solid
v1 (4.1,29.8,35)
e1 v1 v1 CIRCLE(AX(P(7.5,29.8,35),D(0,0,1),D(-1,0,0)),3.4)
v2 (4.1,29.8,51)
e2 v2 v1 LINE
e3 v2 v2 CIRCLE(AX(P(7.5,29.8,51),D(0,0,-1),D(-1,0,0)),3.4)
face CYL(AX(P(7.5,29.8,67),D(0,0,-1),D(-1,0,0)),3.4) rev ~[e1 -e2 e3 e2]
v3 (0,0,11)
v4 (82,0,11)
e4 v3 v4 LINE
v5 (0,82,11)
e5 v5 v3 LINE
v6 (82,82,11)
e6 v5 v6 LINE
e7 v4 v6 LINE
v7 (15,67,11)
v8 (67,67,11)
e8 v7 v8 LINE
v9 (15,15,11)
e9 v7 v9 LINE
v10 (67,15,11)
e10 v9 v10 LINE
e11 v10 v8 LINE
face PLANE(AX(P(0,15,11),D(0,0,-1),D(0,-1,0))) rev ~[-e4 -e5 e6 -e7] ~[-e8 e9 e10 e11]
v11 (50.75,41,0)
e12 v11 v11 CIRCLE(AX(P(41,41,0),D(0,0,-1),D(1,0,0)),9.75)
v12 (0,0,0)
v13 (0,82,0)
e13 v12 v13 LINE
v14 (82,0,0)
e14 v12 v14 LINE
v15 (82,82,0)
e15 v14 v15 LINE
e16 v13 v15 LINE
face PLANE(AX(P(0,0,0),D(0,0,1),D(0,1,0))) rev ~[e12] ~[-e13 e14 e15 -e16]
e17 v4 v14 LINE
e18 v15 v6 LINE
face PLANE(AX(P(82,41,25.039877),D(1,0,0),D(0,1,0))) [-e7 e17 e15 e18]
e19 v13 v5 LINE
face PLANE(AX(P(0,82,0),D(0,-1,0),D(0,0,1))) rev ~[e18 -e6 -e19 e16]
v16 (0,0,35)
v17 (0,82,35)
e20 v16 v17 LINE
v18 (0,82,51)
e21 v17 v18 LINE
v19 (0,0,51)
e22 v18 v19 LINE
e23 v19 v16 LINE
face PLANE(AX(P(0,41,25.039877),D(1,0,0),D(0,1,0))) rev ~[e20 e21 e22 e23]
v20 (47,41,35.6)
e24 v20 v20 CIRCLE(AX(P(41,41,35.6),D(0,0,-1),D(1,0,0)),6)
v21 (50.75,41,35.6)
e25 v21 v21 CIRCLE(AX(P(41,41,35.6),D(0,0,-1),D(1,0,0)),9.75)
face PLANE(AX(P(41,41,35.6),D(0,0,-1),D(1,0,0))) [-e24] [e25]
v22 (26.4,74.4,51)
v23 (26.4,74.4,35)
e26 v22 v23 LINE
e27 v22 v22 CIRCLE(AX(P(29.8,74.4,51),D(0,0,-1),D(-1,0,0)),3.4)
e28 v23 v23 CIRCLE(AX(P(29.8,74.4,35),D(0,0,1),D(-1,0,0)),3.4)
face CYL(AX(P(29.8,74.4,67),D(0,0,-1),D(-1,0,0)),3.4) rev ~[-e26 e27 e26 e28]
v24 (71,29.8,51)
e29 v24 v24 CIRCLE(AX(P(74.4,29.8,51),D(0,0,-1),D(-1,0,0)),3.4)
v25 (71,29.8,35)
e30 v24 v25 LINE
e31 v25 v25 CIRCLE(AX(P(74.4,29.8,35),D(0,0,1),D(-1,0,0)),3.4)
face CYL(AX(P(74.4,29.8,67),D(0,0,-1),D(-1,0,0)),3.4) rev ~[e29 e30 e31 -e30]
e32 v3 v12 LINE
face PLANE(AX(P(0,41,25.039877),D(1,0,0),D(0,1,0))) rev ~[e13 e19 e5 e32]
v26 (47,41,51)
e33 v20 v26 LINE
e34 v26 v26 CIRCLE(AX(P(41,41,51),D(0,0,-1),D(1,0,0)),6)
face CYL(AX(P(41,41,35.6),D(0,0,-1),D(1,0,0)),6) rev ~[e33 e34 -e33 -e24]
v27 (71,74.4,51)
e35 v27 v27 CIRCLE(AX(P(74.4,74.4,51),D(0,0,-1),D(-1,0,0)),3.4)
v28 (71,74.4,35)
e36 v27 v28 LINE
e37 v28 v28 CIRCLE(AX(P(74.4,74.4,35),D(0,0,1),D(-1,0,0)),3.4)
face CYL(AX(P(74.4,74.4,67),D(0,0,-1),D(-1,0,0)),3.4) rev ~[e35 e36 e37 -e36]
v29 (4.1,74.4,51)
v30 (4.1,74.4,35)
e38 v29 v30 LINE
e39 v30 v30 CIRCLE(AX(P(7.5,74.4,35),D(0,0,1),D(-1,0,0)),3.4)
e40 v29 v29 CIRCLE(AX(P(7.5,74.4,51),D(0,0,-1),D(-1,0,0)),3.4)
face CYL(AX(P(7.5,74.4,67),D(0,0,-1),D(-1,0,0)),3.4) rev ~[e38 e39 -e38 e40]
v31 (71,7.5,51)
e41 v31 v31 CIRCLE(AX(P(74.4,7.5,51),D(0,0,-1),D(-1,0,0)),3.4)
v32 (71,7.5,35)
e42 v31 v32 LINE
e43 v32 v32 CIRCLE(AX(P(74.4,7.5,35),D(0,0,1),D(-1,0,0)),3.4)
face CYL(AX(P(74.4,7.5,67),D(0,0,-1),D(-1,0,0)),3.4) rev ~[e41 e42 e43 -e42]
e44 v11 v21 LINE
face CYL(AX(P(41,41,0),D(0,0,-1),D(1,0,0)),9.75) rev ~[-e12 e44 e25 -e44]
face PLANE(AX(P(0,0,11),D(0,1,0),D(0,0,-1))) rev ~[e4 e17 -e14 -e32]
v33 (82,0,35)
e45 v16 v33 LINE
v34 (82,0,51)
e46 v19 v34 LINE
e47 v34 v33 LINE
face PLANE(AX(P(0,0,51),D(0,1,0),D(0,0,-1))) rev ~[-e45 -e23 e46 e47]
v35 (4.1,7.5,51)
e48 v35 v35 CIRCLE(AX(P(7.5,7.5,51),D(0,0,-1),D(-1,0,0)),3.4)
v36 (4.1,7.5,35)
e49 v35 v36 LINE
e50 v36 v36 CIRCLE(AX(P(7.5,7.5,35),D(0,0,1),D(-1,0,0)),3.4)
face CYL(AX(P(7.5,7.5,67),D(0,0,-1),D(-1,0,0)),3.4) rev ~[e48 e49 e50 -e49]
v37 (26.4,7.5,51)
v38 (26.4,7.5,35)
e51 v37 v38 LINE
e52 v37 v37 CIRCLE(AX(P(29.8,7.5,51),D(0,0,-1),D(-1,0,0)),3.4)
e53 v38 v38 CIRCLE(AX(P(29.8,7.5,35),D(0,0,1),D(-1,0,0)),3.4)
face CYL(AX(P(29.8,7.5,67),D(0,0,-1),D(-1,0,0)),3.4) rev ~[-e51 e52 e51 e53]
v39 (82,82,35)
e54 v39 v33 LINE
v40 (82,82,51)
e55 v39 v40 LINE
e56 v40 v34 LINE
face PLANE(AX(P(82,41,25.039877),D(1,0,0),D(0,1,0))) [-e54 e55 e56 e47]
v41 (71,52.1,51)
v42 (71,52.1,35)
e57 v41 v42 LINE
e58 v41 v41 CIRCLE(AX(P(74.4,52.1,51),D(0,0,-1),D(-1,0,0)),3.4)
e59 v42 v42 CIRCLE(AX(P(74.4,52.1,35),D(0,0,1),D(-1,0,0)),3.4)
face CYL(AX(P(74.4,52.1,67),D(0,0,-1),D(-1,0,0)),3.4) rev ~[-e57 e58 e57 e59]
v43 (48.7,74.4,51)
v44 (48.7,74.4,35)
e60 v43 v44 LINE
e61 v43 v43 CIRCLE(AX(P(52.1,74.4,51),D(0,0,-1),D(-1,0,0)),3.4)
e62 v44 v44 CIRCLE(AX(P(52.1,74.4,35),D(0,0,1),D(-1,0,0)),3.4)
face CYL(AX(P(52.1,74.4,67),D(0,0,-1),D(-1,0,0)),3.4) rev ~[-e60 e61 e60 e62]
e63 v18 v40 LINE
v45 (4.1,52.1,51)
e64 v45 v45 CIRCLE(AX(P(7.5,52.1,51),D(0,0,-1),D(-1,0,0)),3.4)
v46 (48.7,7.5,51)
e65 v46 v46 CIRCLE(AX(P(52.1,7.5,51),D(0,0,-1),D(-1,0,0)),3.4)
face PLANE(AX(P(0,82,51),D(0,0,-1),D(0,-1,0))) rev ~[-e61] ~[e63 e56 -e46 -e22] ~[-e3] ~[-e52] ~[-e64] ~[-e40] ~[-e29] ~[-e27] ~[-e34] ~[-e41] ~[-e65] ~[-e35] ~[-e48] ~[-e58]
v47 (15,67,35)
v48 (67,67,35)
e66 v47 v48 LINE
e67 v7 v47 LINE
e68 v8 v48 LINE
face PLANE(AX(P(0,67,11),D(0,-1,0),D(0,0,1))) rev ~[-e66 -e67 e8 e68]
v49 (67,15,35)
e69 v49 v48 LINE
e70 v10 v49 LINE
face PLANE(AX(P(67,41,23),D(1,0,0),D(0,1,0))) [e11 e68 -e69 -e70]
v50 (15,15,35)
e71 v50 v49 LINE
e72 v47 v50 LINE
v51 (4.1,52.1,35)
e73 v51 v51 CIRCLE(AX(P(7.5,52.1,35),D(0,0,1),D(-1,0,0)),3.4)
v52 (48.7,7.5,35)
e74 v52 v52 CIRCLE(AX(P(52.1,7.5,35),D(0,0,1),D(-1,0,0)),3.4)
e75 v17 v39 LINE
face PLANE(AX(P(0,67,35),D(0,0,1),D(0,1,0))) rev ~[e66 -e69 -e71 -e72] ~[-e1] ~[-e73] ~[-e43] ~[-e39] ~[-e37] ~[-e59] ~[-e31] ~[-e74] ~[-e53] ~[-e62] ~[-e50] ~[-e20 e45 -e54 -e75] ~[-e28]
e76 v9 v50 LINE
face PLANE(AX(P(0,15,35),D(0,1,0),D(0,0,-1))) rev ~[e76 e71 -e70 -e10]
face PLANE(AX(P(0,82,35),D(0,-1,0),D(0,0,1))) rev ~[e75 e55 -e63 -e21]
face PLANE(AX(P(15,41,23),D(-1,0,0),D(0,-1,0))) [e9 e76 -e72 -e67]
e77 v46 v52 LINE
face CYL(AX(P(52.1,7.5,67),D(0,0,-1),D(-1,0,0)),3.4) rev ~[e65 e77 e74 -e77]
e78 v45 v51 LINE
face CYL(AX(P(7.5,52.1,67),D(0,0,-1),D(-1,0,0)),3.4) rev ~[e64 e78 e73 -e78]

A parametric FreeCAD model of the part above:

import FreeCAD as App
import Part
import Sketcher
from FreeCAD import Vector

doc = App.newDocument("Part")
body = doc.addObject("PartDesign::Body", "Body")

# Sketch on YZ plane
sketch1 = body.newObject("Sketcher::SketchObject", "Sketch")
sketch1.AttachmentSupport = (doc.getObject("YZ_Plane"), [""])
sketch1.MapMode = "FlatFace"
sketch1.addGeometry([
    Part.LineSegment(Vector(0, 11, 0), Vector(0, 0, 0)),  # 0
    Part.LineSegment(Vector(0, 0, 0), Vector(82, 0, 0)),  # 1
    Part.LineSegment(Vector(82, 0, 0), Vector(82, 11, 0)),  # 2
    Part.LineSegment(Vector(82, 11, 0), Vector(67, 11, 0)),  # 3
    Part.LineSegment(Vector(67, 11, 0), Vector(67, 35, 0)),  # 4
    Part.LineSegment(Vector(67, 35, 0), Vector(82, 35, 0)),  # 5
    Part.LineSegment(Vector(82, 35, 0), Vector(82, 51, 0)),  # 6
    Part.LineSegment(Vector(82, 51, 0), Vector(0, 51, 0)),  # 7
    Part.LineSegment(Vector(0, 51, 0), Vector(0, 35, 0)),  # 8
    Part.LineSegment(Vector(0, 35, 0), Vector(15, 35, 0)),  # 9
    Part.LineSegment(Vector(15, 35, 0), Vector(15, 11, 0)),  # 10
    Part.LineSegment(Vector(15, 11, 0), Vector(0, 11, 0)),  # 11
], False)
sketch1.addConstraint([
    Sketcher.Constraint("Coincident", 0, 2, 1, 1),
    Sketcher.Constraint("Coincident", 1, 2, 2, 1),
    Sketcher.Constraint("Coincident", 2, 2, 3, 1),
    Sketcher.Constraint("Coincident", 3, 2, 4, 1),
    Sketcher.Constraint("Coincident", 4, 2, 5, 1),
    Sketcher.Constraint("Coincident", 5, 2, 6, 1),
    Sketcher.Constraint("Coincident", 6, 2, 7, 1),
    Sketcher.Constraint("Coincident", 7, 2, 8, 1),
    Sketcher.Constraint("Coincident", 8, 2, 9, 1),
    Sketcher.Constraint("Coincident", 9, 2, 10, 1),
    Sketcher.Constraint("Coincident", 10, 2, 11, 1),
    Sketcher.Constraint("Coincident", 11, 2, 0, 1),
    Sketcher.Constraint("Vertical", 0),
    Sketcher.Constraint("Horizontal", 1),
    Sketcher.Constraint("Vertical", 2),
    Sketcher.Constraint("Horizontal", 3),
    Sketcher.Constraint("Vertical", 4),
    Sketcher.Constraint("Horizontal", 5),
    Sketcher.Constraint("Vertical", 6),
    Sketcher.Constraint("Horizontal", 7),
    Sketcher.Constraint("Vertical", 8),
    Sketcher.Constraint("Horizontal", 9),
    Sketcher.Constraint("Vertical", 10),
    Sketcher.Constraint("Horizontal", 11),
    Sketcher.Constraint("Coincident", 0, 2, -1, 1),
    Sketcher.Constraint("PointOnObject", 7, 2, -2),
    Sketcher.Constraint("Horizontal", 5, 2, 8, 2),
    Sketcher.Constraint("Horizontal", 3, 2, 10, 2),
    Sketcher.Constraint("Vertical", 2, 2, 5, 2),
    Sketcher.Constraint("Equal", 5, 9),
    Sketcher.Constraint("DistanceX", 1, 1, 1, 2, 82.0),
    Sketcher.Constraint("DistanceX", 3, 2, 3, 1, 15.0),
    Sketcher.Constraint("DistanceY", 0, 2, 0, 1, 11.0),
    Sketcher.Constraint("DistanceY", 4, 1, 4, 2, 24.0),
    Sketcher.Constraint("DistanceY", 6, 1, 6, 2, 16.0),
])
pad1 = body.newObject("PartDesign::Pad", "Pad")
pad1.Profile = sketch1
pad1.Length = 82

# Sketch on YZ plane
sketch2 = body.newObject("Sketcher::SketchObject", "Sketch001")
sketch2.AttachmentSupport = (doc.getObject("YZ_Plane"), [""])
sketch2.MapMode = "FlatFace"
sketch2.AttachmentOffset = App.Placement(Vector(0, 0, 82), App.Rotation())
sketch2.addGeometry([
    Part.LineSegment(Vector(15, 35, 0), Vector(15, 11, 0)),
    Part.LineSegment(Vector(15, 11, 0), Vector(67, 11, 0)),
    Part.LineSegment(Vector(67, 11, 0), Vector(67, 35, 0)),
    Part.LineSegment(Vector(67, 35, 0), Vector(15, 35, 0)),
], False)
sketch2.addConstraint([
    Sketcher.Constraint("Coincident", 0, 2, 1, 1),
    Sketcher.Constraint("Coincident", 1, 2, 2, 1),
    Sketcher.Constraint("Coincident", 2, 2, 3, 1),
    Sketcher.Constraint("Coincident", 3, 2, 0, 1),
    Sketcher.Constraint("Vertical", 0),
    Sketcher.Constraint("Horizontal", 1),
    Sketcher.Constraint("Vertical", 2),
    Sketcher.Constraint("Horizontal", 3),
    Sketcher.Constraint("DistanceX", 1, 1, 1, 2, 52.0),
    Sketcher.Constraint("DistanceY", 0, 2, 0, 1, 24.0),
    Sketcher.Constraint("DistanceX", -1, 1, 0, 2, 15.0),
    Sketcher.Constraint("DistanceY", -1, 1, 0, 2, 11.0),
])
pocket1 = body.newObject("PartDesign::Pocket", "Pocket")
pocket1.Profile = sketch2
pocket1.Length = 15

# Sketch on YZ plane
sketch3 = body.newObject("Sketcher::SketchObject", "Sketch002")
sketch3.AttachmentSupport = (doc.getObject("YZ_Plane"), [""])
sketch3.MapMode = "FlatFace"
sketch3.addGeometry([
    Part.LineSegment(Vector(67, 35, 0), Vector(67, 11, 0)),
    Part.LineSegment(Vector(67, 11, 0), Vector(15, 11, 0)),
    Part.LineSegment(Vector(15, 11, 0), Vector(15, 35, 0)),
    Part.LineSegment(Vector(15, 35, 0), Vector(67, 35, 0)),
], False)
sketch3.addConstraint([
    Sketcher.Constraint("Coincident", 0, 2, 1, 1),
    Sketcher.Constraint("Coincident", 1, 2, 2, 1),
    Sketcher.Constraint("Coincident", 2, 2, 3, 1),
    Sketcher.Constraint("Coincident", 3, 2, 0, 1),
    Sketcher.Constraint("Vertical", 0),
    Sketcher.Constraint("Horizontal", 1),
    Sketcher.Constraint("Vertical", 2),
    Sketcher.Constraint("Horizontal", 3),
    Sketcher.Constraint("DistanceX", 1, 2, 1, 1, 52.0),
    Sketcher.Constraint("DistanceY", 0, 2, 0, 1, 24.0),
    Sketcher.Constraint("DistanceX", -1, 1, 0, 2, 67.0),
    Sketcher.Constraint("DistanceY", -1, 1, 0, 2, 11.0),
])
pocket2 = body.newObject("PartDesign::Pocket", "Pocket001")
pocket2.Profile = sketch3
pocket2.Length = 15
pocket2.Reversed = True

# Sketch on XY plane
sketch4 = body.newObject("Sketcher::SketchObject", "Sketch003")
sketch4.AttachmentSupport = (doc.getObject("XY_Plane"), [""])
sketch4.MapMode = "FlatFace"
sketch4.addGeometry(Part.Circle(Vector(41, 41, 0), Vector(0, 0, 1), 9.75), False)
sketch4.addConstraint([
    Sketcher.Constraint("Diameter", 0, 19.5),
    Sketcher.Constraint("DistanceX", -1, 1, 0, 3, 41.0),
    Sketcher.Constraint("DistanceY", -1, 1, 0, 3, 41.0),
])
pocket3 = body.newObject("PartDesign::Pocket", "Pocket002")
pocket3.Profile = sketch4
pocket3.Length = 35.6
pocket3.Reversed = True

# Sketch on XY plane
sketch5 = body.newObject("Sketcher::SketchObject", "Sketch004")
sketch5.AttachmentSupport = (doc.getObject("XY_Plane"), [""])
sketch5.MapMode = "FlatFace"
sketch5.AttachmentOffset = App.Placement(Vector(0, 0, 35.6), App.Rotation())
sketch5.addGeometry(Part.Circle(Vector(41, 41, 0), Vector(0, 0, 1), 6), False)
sketch5.addConstraint([
    Sketcher.Constraint("Diameter", 0, 12.0),
    Sketcher.Constraint("DistanceX", -1, 1, 0, 3, 41.0),
    Sketcher.Constraint("DistanceY", -1, 1, 0, 3, 41.0),
])
pocket4 = body.newObject("PartDesign::Pocket", "Pocket003")
pocket4.Profile = sketch5
pocket4.Type = "ThroughAll"
pocket4.Reversed = True

# Sketch on XY plane
sketch6 = body.newObject("Sketcher::SketchObject", "Sketch005")
sketch6.AttachmentSupport = (doc.getObject("XY_Plane"), [""])
sketch6.MapMode = "FlatFace"
sketch6.AttachmentOffset = App.Placement(Vector(0, 0, 51), App.Rotation())
sketch6.addGeometry([
    Part.Circle(Vector(7.5, 7.5, 0), Vector(0, 0, 1), 3.25),  # 0
    Part.Circle(Vector(7.5, 29.8, 0), Vector(0, 0, 1), 3.25),  # 1
    Part.Circle(Vector(7.5, 52.1, 0), Vector(0, 0, 1), 3.25),  # 2
    Part.Circle(Vector(7.5, 74.4, 0), Vector(0, 0, 1), 3.25),  # 3
    Part.Circle(Vector(29.8, 7.5, 0), Vector(0, 0, 1), 3.25),  # 4
    Part.Circle(Vector(29.8, 74.4, 0), Vector(0, 0, 1), 3.25),  # 5
    Part.Circle(Vector(52.1, 7.5, 0), Vector(0, 0, 1), 3.25),  # 6
    Part.Circle(Vector(52.1, 74.4, 0), Vector(0, 0, 1), 3.25),  # 7
    Part.Circle(Vector(74.4, 7.5, 0), Vector(0, 0, 1), 3.25),  # 8
    Part.Circle(Vector(74.4, 29.8, 0), Vector(0, 0, 1), 3.25),  # 9
    Part.Circle(Vector(74.4, 52.1, 0), Vector(0, 0, 1), 3.25),  # 10
    Part.Circle(Vector(74.4, 74.4, 0), Vector(0, 0, 1), 3.25),  # 11
], False)
sketch6.addConstraint([
    Sketcher.Constraint("Equal", 0, 1),
    Sketcher.Constraint("Equal", 1, 2),
    Sketcher.Constraint("Equal", 2, 3),
    Sketcher.Constraint("Equal", 3, 4),
    Sketcher.Constraint("Equal", 4, 5),
    Sketcher.Constraint("Equal", 5, 6),
    Sketcher.Constraint("Equal", 6, 7),
    Sketcher.Constraint("Equal", 7, 8),
    Sketcher.Constraint("Equal", 8, 9),
    Sketcher.Constraint("Equal", 9, 10),
    Sketcher.Constraint("Equal", 10, 11),
    Sketcher.Constraint("Horizontal", 0, 3, 4, 3),
    Sketcher.Constraint("Horizontal", 3, 3, 5, 3),
    Sketcher.Constraint("Horizontal", 4, 3, 6, 3),
    Sketcher.Constraint("Horizontal", 5, 3, 7, 3),
    Sketcher.Constraint("Horizontal", 6, 3, 8, 3),
    Sketcher.Constraint("Horizontal", 1, 3, 9, 3),
    Sketcher.Constraint("Horizontal", 2, 3, 10, 3),
    Sketcher.Constraint("Horizontal", 7, 3, 11, 3),
    Sketcher.Constraint("Vertical", 0, 3, 1, 3),
    Sketcher.Constraint("Vertical", 1, 3, 2, 3),
    Sketcher.Constraint("Vertical", 2, 3, 3, 3),
    Sketcher.Constraint("Vertical", 4, 3, 5, 3),
    Sketcher.Constraint("Vertical", 6, 3, 7, 3),
    Sketcher.Constraint("Vertical", 8, 3, 9, 3),
    Sketcher.Constraint("Vertical", 9, 3, 10, 3),
    Sketcher.Constraint("Vertical", 10, 3, 11, 3),
    Sketcher.Constraint("Diameter", 0, 6.5),
    Sketcher.Constraint("DistanceX", -1, 1, 0, 3, 7.5),
    Sketcher.Constraint("DistanceY", -1, 1, 0, 3, 7.5),
    Sketcher.Constraint("DistanceY", -1, 1, 1, 3, 29.8),
    Sketcher.Constraint("DistanceY", -1, 1, 2, 3, 52.1),
    Sketcher.Constraint("DistanceY", -1, 1, 3, 3, 74.4),
    Sketcher.Constraint("DistanceX", -1, 1, 4, 3, 29.8),
    Sketcher.Constraint("DistanceX", -1, 1, 6, 3, 52.1),
    Sketcher.Constraint("DistanceX", -1, 1, 8, 3, 74.4),
])
pocket5 = body.newObject("PartDesign::Pocket", "Pocket004")
pocket5.Profile = sketch6
pocket5.Length = 20

# Sketch on XY plane
sketch7 = body.newObject("Sketcher::SketchObject", "Sketch006")
sketch7.AttachmentSupport = (doc.getObject("XY_Plane"), [""])
sketch7.MapMode = "FlatFace"
sketch7.AttachmentOffset = App.Placement(Vector(0, 0, 51), App.Rotation())
sketch7.addGeometry([
    Part.Circle(Vector(7.5, 7.5, 0), Vector(0, 0, 1), 3.4),  # 0
    Part.Circle(Vector(7.5, 29.8, 0), Vector(0, 0, 1), 3.4),  # 1
    Part.Circle(Vector(7.5, 52.1, 0), Vector(0, 0, 1), 3.4),  # 2
    Part.Circle(Vector(7.5, 74.4, 0), Vector(0, 0, 1), 3.4),  # 3
    Part.Circle(Vector(29.8, 74.4, 0), Vector(0, 0, 1), 3.4),  # 4
    Part.Circle(Vector(52.1, 74.4, 0), Vector(0, 0, 1), 3.4),  # 5
    Part.Circle(Vector(74.4, 74.4, 0), Vector(0, 0, 1), 3.4),  # 6
    Part.Circle(Vector(74.4, 52.1, 0), Vector(0, 0, 1), 3.4),  # 7
    Part.Circle(Vector(74.4, 29.8, 0), Vector(0, 0, 1), 3.4),  # 8
    Part.Circle(Vector(74.4, 7.5, 0), Vector(0, 0, 1), 3.4),  # 9
    Part.Circle(Vector(52.1, 7.5, 0), Vector(0, 0, 1), 3.4),  # 10
    Part.Circle(Vector(29.8, 7.5, 0), Vector(0, 0, 1), 3.4),  # 11
], False)
sketch7.addConstraint([
    Sketcher.Constraint("Equal", 0, 1),
    Sketcher.Constraint("Equal", 1, 2),
    Sketcher.Constraint("Equal", 2, 3),
    Sketcher.Constraint("Equal", 3, 4),
    Sketcher.Constraint("Equal", 4, 5),
    Sketcher.Constraint("Equal", 5, 6),
    Sketcher.Constraint("Equal", 6, 7),
    Sketcher.Constraint("Equal", 7, 8),
    Sketcher.Constraint("Equal", 8, 9),
    Sketcher.Constraint("Equal", 9, 10),
    Sketcher.Constraint("Equal", 10, 11),
    Sketcher.Constraint("Horizontal", 3, 3, 4, 3),
    Sketcher.Constraint("Horizontal", 4, 3, 5, 3),
    Sketcher.Constraint("Horizontal", 5, 3, 6, 3),
    Sketcher.Constraint("Horizontal", 2, 3, 7, 3),
    Sketcher.Constraint("Horizontal", 1, 3, 8, 3),
    Sketcher.Constraint("Horizontal", 0, 3, 9, 3),
    Sketcher.Constraint("Horizontal", 9, 3, 10, 3),
    Sketcher.Constraint("Horizontal", 10, 3, 11, 3),
    Sketcher.Constraint("Vertical", 0, 3, 1, 3),
    Sketcher.Constraint("Vertical", 1, 3, 2, 3),
    Sketcher.Constraint("Vertical", 2, 3, 3, 3),
    Sketcher.Constraint("Vertical", 6, 3, 7, 3),
    Sketcher.Constraint("Vertical", 7, 3, 8, 3),
    Sketcher.Constraint("Vertical", 8, 3, 9, 3),
    Sketcher.Constraint("Vertical", 5, 3, 10, 3),
    Sketcher.Constraint("Vertical", 4, 3, 11, 3),
    Sketcher.Constraint("Diameter", 0, 6.8),
    Sketcher.Constraint("DistanceX", -1, 1, 0, 3, 7.5),
    Sketcher.Constraint("DistanceY", -1, 1, 0, 3, 7.5),
    Sketcher.Constraint("DistanceY", -1, 1, 1, 3, 29.8),
    Sketcher.Constraint("DistanceY", -1, 1, 2, 3, 52.1),
    Sketcher.Constraint("DistanceY", -1, 1, 3, 3, 74.4),
    Sketcher.Constraint("DistanceX", -1, 1, 4, 3, 29.8),
    Sketcher.Constraint("DistanceX", -1, 1, 5, 3, 52.1),
    Sketcher.Constraint("DistanceX", -1, 1, 6, 3, 74.4),
])
doc.recompute()
hole = body.newObject("PartDesign::Hole", "Hole")
hole.Profile = sketch7
hole.ThreadType = "None"
hole.Diameter = 6.8
hole.DepthType = "Dimension"
hole.Depth = 16
hole.DrillPoint = "Angled"
hole.DrillPointAngle = 118

doc.recompute()
